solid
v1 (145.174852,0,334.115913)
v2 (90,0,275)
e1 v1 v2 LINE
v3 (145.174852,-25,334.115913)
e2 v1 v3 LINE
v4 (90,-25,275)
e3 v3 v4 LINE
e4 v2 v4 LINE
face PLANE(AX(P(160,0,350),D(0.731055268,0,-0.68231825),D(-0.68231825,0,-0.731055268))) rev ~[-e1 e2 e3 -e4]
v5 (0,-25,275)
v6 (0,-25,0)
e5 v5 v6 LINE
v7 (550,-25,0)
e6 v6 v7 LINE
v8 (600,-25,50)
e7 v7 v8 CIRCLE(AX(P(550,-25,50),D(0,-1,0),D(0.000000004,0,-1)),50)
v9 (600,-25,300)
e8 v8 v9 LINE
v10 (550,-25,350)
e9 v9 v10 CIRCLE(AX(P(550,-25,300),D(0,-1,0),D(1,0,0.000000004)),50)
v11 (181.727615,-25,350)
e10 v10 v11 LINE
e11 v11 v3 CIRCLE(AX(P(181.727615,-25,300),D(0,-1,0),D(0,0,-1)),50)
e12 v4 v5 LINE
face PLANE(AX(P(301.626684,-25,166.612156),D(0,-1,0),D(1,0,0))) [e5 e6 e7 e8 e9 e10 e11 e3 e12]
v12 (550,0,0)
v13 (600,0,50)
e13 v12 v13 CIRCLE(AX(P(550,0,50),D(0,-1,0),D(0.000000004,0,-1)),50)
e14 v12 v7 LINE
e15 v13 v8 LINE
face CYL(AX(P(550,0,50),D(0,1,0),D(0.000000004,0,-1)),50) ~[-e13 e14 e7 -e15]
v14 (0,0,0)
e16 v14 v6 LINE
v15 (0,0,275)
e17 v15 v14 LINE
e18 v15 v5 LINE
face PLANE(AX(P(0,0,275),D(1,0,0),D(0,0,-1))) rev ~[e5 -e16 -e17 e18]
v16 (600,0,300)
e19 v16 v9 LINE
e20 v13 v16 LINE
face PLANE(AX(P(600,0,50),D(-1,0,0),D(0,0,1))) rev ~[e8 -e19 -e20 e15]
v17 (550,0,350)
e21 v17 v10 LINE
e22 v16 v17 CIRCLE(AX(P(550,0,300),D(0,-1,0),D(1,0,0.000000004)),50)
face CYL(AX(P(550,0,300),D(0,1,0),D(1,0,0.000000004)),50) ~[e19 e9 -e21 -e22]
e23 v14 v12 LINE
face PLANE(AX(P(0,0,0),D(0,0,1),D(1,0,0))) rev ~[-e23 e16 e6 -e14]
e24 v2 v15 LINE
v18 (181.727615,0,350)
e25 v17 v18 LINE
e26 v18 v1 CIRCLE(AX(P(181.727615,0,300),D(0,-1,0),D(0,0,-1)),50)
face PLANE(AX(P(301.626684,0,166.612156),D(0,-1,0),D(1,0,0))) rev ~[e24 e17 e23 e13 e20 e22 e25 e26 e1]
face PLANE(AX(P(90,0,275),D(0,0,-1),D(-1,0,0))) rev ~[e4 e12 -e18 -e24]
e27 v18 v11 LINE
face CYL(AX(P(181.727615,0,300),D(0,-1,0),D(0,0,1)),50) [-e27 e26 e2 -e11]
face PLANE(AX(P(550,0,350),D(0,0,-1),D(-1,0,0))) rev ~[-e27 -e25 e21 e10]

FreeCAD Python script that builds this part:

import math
import FreeCAD as App
import Part
import Sketcher
from FreeCAD import Vector
Q = App.Units.Quantity


def edges_at(feature, points):
    """Names of the edges that pass closest to the given points."""
    edges = feature.Shape.Edges
    near = lambda p: min(range(len(edges)), key=lambda i: edges[i].distToShape(Part.Vertex(*p))[0])
    return sorted({f"Edge{near(p) + 1}" for p in points})

doc = App.newDocument("Part")
body = doc.addObject("PartDesign::Body", "Body")

sketch1 = body.newObject("Sketcher::SketchObject", "Sketch")
sketch1.AttachmentSupport = (doc.getObject("XZ_Plane"), [""])
sketch1.MapMode = "FlatFace"
sketch1.addGeometry(Part.LineSegment(Vector(0, 275, 0), Vector(0, 0, 0)), False)
sketch1.addGeometry(Part.LineSegment(Vector(0, 0, 0), Vector(550, 0, 0)), False)
sketch1.addGeometry(Part.ArcOfCircle(Part.Circle(Vector(550, 50, 0), Vector(0, 0, 1), 50), math.radians(-90), math.radians(0)), False)
sketch1.addGeometry(Part.LineSegment(Vector(600, 50, 0), Vector(600, 300, 0)), False)
sketch1.addGeometry(Part.ArcOfCircle(Part.Circle(Vector(550, 300, 0), Vector(0, 0, 1), 50), math.radians(0), math.radians(90)), False)
sketch1.addGeometry(Part.LineSegment(Vector(550, 350, 0), Vector(160, 350, 0)), False)
sketch1.addGeometry(Part.LineSegment(Vector(160, 350, 0), Vector(90, 275, 0)), False)
sketch1.addGeometry(Part.LineSegment(Vector(90, 275, 0), Vector(0, 275, 0)), False)
sketch1.addConstraint(Sketcher.Constraint("Coincident", 0, 2, 1, 1))
sketch1.addConstraint(Sketcher.Constraint("Tangent", 1, 2, 2, 1))
sketch1.addConstraint(Sketcher.Constraint("Tangent", 2, 2, 3, 1))
sketch1.addConstraint(Sketcher.Constraint("Tangent", 3, 2, 4, 1))
sketch1.addConstraint(Sketcher.Constraint("Tangent", 4, 2, 5, 1))
sketch1.addConstraint(Sketcher.Constraint("Coincident", 5, 2, 6, 1))
sketch1.addConstraint(Sketcher.Constraint("Coincident", 6, 2, 7, 1))
sketch1.addConstraint(Sketcher.Constraint("Coincident", 7, 2, 0, 1))
sketch1.addConstraint(Sketcher.Constraint("Vertical", 0))
sketch1.addConstraint(Sketcher.Constraint("Horizontal", 1))
sketch1.addConstraint(Sketcher.Constraint("Vertical", 3))
sketch1.addConstraint(Sketcher.Constraint("Horizontal", 5))
sketch1.addConstraint(Sketcher.Constraint("Horizontal", 7))
sketch1.addConstraint(Sketcher.Constraint("Coincident", 0, 2, -1, 1))
sketch1.addConstraint(Sketcher.Constraint("Equal", 2, 4))
sketch1.addConstraint(Sketcher.Constraint("Radius", 2, Q("50 mm")))
sketch1.addConstraint(Sketcher.Constraint("DistanceX", 1, 1, 1, 2, Q("550 mm")))
sketch1.addConstraint(Sketcher.Constraint("DistanceX", 5, 2, 5, 1, Q("390 mm")))
sketch1.addConstraint(Sketcher.Constraint("DistanceX", 7, 2, 7, 1, Q("90 mm")))
sketch1.addConstraint(Sketcher.Constraint("DistanceY", 0, 2, 0, 1, Q("275 mm")))
sketch1.addConstraint(Sketcher.Constraint("DistanceY", 3, 1, 3, 2, Q("250 mm")))
pad1 = body.newObject("PartDesign::Pad", "Pad")
pad1.Profile = sketch1
pad1.Length = 25
doc.recompute()

fillet = body.newObject("PartDesign::Fillet", "Fillet")
fillet.Base = (pad1, edges_at(pad1, [(160, -12.5, 350)]))
fillet.Radius = 50

doc.recompute()
